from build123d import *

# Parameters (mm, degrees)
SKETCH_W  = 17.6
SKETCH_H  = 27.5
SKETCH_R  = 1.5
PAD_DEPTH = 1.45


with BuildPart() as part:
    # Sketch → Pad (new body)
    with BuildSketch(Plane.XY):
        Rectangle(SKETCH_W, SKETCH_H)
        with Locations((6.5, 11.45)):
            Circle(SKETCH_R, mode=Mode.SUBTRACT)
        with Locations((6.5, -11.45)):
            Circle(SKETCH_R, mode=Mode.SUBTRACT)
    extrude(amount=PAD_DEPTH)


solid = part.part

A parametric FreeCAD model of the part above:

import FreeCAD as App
import Part
import Sketcher

V = App.Vector


def add_polygon(sketch, points):
    """Adds a closed chain of lines whose ends are joined by coincident constraints."""
    first, n = sketch.GeometryCount, len(points)
    for a, b in zip(points, points[1:] + points[:1]):
        sketch.addGeometry(Part.LineSegment(App.Vector(*a, 0), App.Vector(*b, 0)), False)
    for i in range(n):
        sketch.addConstraint(Sketcher.Constraint("Coincident", first + i, 2, first + (i + 1) % n, 1))

doc = App.newDocument("Part")
params = doc.addObject("Spreadsheet::Sheet", "Params")
for row, (alias, value) in enumerate([
    ("sketch1_diameter", "3 mm"),
    ("sketch1_width", "17.6 mm"),
    ("sketch1_height", "27.5 mm"),
    ("pad1_length", "1.45 mm"),
], start=1):
    params.set(f"A{row}", alias)
    params.set(f"B{row}", "=" + value)
    params.setAlias(f"B{row}", alias)

body = doc.addObject("PartDesign::Body", "Body")

# Sketch on XY plane
sketch1 = doc.addObject("Sketcher::SketchObject", "Sketch")
body.addObject(sketch1)
sketch1.AttachmentSupport = (doc.XY_Plane, [""])
sketch1.MapMode = "FlatFace"
add_polygon(sketch1, [(-8.8, 13.8), (-8.8, -13.8), (8.8, -13.8), (8.8, 13.8)])  # lines 0-3
sketch1.addGeometry(Part.Circle(V(6.5, -11.4, 0), V(0, 0, 1), 1.5), False)  # 4
sketch1.addGeometry(Part.Circle(V(6.5, 11.4, 0), V(0, 0, 1), 1.5), False)  # 5
sketch1.addConstraint([
    Sketcher.Constraint("Vertical", 0),
    Sketcher.Constraint("Horizontal", 1),
    Sketcher.Constraint("Vertical", 2),
    Sketcher.Constraint("Horizontal", 3),
    Sketcher.Constraint("Equal", 4, 5),
    Sketcher.Constraint("Symmetric", 0, 2, 2, 2, -1, 1),
    Sketcher.Constraint("Symmetric", 4, 3, 5, 3, -1),
    Sketcher.Constraint("Diameter", 4, 3.0),
    Sketcher.Constraint("DistanceX", 1, 1, 1, 2, 17.6),
    Sketcher.Constraint("DistanceY", 0, 2, 0, 1, 27.5),
    Sketcher.Constraint("DistanceX", -1, 1, 4, 3, 6.5),
    Sketcher.Constraint("DistanceY", 4, 3, 5, 3, 22.9),
])
sketch1.setExpression("Constraints[11]", "Params.sketch1_diameter")
sketch1.setExpression("Constraints[12]", "Params.sketch1_width")
sketch1.setExpression("Constraints[13]", "Params.sketch1_height")
pad1 = doc.addObject("PartDesign::Pad", "Pad")
body.addObject(pad1)
pad1.Profile = sketch1
pad1.setExpression("Length", "Params.pad1_length")

doc.recompute()
